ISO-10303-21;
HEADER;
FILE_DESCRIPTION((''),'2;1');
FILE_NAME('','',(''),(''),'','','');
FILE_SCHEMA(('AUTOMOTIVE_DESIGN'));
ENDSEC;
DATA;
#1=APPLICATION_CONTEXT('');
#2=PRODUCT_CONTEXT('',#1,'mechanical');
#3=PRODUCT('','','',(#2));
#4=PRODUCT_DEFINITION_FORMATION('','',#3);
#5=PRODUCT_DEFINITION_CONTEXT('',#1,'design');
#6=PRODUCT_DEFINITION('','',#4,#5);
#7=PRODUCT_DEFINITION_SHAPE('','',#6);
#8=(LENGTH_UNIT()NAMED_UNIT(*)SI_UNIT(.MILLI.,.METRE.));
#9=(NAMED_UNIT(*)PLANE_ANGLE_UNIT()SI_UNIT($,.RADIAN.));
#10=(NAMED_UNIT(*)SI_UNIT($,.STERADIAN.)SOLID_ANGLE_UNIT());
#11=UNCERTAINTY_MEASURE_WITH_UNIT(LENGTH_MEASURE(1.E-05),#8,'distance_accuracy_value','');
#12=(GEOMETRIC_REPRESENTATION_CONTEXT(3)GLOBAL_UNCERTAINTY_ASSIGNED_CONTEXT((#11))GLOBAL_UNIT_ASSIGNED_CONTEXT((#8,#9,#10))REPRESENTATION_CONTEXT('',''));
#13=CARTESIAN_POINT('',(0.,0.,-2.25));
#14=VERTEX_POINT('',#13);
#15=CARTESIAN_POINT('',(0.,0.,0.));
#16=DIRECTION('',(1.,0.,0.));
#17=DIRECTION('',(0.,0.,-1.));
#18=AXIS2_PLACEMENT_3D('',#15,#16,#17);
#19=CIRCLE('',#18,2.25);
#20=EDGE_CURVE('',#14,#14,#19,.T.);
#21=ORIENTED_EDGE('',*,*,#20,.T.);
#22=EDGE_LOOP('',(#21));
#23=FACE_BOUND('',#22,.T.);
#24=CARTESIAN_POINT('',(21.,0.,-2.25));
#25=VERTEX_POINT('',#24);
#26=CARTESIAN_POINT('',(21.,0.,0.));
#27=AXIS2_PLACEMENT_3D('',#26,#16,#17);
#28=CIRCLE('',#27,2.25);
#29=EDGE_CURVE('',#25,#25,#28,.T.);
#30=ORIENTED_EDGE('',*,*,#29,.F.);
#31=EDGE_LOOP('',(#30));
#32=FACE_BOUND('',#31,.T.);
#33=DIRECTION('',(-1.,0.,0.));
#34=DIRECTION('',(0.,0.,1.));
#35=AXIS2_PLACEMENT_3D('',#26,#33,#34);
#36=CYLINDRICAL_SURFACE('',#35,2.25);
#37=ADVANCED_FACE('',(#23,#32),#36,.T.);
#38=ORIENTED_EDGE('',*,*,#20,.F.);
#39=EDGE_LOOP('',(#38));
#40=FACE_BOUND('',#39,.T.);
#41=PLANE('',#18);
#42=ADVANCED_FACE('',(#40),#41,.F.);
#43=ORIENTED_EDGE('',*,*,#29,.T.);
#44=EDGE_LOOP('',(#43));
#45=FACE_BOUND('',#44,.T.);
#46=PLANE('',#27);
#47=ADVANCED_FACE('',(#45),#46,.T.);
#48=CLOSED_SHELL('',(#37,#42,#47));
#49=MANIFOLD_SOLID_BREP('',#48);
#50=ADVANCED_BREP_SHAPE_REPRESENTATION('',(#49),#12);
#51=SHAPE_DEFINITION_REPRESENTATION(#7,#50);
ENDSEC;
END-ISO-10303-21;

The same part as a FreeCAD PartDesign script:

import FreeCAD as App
import Part
import Sketcher

doc = App.newDocument("Part")
body = doc.addObject("PartDesign::Body", "Body")

# Sketch on YZ plane
sketch1 = body.newObject("Sketcher::SketchObject", "Sketch")
sketch1.AttachmentSupport = (doc.getObject("YZ_Plane"), [""])
sketch1.MapMode = "FlatFace"
sketch1.addGeometry(Part.Circle(App.Vector(0, 0, 0), App.Vector(0, 0, 1), 2.25), False)
sketch1.addConstraint([
    Sketcher.Constraint("Coincident", 0, 3, -1, 1),
    Sketcher.Constraint("Diameter", 0, 4.5),
])
pad1 = body.newObject("PartDesign::Pad", "Pad")
pad1.Profile = sketch1
pad1.Length = 21

doc.recompute()
